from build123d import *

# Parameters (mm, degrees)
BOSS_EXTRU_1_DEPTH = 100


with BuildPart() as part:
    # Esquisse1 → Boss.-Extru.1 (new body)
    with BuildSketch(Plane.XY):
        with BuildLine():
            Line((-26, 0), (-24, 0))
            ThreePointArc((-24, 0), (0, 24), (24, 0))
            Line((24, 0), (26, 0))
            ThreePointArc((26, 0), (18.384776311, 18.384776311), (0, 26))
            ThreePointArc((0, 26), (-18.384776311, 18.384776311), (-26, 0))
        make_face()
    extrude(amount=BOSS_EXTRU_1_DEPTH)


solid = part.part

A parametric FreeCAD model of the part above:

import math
import FreeCAD as App
import Part
import Sketcher
Q = App.Units.Quantity

doc = App.newDocument("Part")
body = doc.addObject("PartDesign::Body", "Body")

# Sketch on XY plane
sketch1 = body.newObject("Sketcher::SketchObject", "Sketch")
sketch1.AttachmentSupport = (doc.getObject("XY_Plane"), [""])
sketch1.MapMode = "FlatFace"
sketch1.addGeometry([
    Part.LineSegment(App.Vector(-26, 0, 0), App.Vector(-24, 0, 0)),  # 0
    Part.ArcOfCircle(Part.Circle(App.Vector(0, 0, 0), App.Vector(0, 0, 1), 24), math.radians(0), math.radians(180)),  # 1
    Part.LineSegment(App.Vector(24, 0, 0), App.Vector(26, 0, 0)),  # 2
    Part.ArcOfCircle(Part.Circle(App.Vector(0, 0, 0), App.Vector(0, 0, 1), 26), math.radians(0), math.radians(90)),  # 3
    Part.ArcOfCircle(Part.Circle(App.Vector(0, 0, 0), App.Vector(0, 0, 1), 26), math.radians(90), math.radians(180)),  # 4
], False)
sketch1.addConstraint([
    Sketcher.Constraint("Coincident", 0, 2, 1, 2),
    Sketcher.Constraint("Coincident", 1, 1, 2, 1),
    Sketcher.Constraint("Coincident", 2, 2, 3, 1),
    Sketcher.Constraint("Tangent", 3, 2, 4, 1),
    Sketcher.Constraint("Coincident", 4, 2, 0, 1),
    Sketcher.Constraint("Horizontal", 0),
    Sketcher.Constraint("Horizontal", 2),
    Sketcher.Constraint("Coincident", 1, 3, -1, 1),
    Sketcher.Constraint("Coincident", 3, 3, -1, 1),
    Sketcher.Constraint("Equal", 3, 4),
    Sketcher.Constraint("PointOnObject", 0, 2, -1),
    Sketcher.Constraint("PointOnObject", 1, 1, -1),
    Sketcher.Constraint("PointOnObject", 3, 2, -2),
    Sketcher.Constraint("Radius", 1, Q("24 mm")),
    Sketcher.Constraint("Radius", 3, Q("26 mm")),
])
pad1 = body.newObject("PartDesign::Pad", "Pad")
pad1.Profile = sketch1
pad1.Length = 100

doc.recompute()
